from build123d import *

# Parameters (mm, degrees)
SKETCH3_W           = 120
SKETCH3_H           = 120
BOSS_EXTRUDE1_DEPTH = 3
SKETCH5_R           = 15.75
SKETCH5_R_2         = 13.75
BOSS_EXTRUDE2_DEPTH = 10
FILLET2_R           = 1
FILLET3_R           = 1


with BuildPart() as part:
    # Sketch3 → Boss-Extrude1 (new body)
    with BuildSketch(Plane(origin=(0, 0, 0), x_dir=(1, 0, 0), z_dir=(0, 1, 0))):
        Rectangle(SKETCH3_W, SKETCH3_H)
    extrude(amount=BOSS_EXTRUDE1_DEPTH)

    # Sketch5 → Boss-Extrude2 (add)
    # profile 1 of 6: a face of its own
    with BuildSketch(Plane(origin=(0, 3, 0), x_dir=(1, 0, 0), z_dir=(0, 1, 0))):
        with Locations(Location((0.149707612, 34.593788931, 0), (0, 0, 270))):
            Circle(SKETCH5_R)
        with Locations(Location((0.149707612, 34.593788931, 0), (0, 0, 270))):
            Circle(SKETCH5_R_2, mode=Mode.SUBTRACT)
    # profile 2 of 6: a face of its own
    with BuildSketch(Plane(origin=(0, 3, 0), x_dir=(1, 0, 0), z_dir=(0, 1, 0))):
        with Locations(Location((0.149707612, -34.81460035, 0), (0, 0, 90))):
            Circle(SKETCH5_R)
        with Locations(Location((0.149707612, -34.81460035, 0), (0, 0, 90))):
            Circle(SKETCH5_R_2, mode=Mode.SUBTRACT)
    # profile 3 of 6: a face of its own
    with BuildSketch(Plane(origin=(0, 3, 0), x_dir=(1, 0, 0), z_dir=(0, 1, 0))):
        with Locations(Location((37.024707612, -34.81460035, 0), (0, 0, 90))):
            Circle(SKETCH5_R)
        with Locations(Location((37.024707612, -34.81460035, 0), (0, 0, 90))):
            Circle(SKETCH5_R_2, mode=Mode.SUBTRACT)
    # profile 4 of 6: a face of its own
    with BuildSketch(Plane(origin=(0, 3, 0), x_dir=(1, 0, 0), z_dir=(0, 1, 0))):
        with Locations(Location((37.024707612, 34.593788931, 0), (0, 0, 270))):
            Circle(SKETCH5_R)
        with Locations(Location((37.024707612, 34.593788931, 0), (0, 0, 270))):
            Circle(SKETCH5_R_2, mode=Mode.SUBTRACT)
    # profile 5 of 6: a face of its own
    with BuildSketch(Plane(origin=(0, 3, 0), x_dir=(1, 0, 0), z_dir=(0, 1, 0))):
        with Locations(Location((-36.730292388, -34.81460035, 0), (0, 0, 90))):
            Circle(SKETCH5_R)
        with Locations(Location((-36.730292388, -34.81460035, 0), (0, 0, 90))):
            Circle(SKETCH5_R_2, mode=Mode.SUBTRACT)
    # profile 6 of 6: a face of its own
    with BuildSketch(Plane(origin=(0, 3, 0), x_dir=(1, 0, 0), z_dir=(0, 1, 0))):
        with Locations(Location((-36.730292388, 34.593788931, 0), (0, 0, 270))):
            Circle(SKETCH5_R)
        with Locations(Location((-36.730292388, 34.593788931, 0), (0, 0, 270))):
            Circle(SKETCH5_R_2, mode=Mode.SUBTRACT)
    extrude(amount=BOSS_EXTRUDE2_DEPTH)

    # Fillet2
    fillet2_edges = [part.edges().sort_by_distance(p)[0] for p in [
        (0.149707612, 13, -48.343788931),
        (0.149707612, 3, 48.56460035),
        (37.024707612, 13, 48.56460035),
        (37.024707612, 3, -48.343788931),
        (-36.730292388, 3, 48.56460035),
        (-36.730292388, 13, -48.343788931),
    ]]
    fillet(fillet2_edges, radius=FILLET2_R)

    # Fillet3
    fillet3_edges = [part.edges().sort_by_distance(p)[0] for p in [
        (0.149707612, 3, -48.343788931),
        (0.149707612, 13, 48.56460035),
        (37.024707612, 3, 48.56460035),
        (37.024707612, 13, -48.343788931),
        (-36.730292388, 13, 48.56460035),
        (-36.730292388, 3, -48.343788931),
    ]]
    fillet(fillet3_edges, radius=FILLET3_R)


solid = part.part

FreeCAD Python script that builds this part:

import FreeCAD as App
import Part
import Sketcher
from FreeCAD import Vector


def edges_at(feature, points):
    """Names of the edges that pass closest to the given points."""
    edges = feature.Shape.Edges
    near = lambda p: min(range(len(edges)), key=lambda i: edges[i].distToShape(Part.Vertex(*p))[0])
    return sorted({f"Edge{near(p) + 1}" for p in points})

doc = App.newDocument("Part")
body = doc.addObject("PartDesign::Body", "Body")

# Sketch on XZ plane
sketch1 = body.newObject("Sketcher::SketchObject", "Sketch")
sketch1.AttachmentSupport = (doc.getObject("XZ_Plane"), [""])
sketch1.MapMode = "FlatFace"
sketch1.addGeometry(Part.LineSegment(Vector(-60, -60, 0), Vector(-60, 60, 0)), False)
sketch1.addGeometry(Part.LineSegment(Vector(-60, 60, 0), Vector(60, 60, 0)), False)
sketch1.addGeometry(Part.LineSegment(Vector(60, 60, 0), Vector(60, -60, 0)), False)
sketch1.addGeometry(Part.LineSegment(Vector(60, -60, 0), Vector(-60, -60, 0)), False)
sketch1.addConstraint(Sketcher.Constraint("Coincident", 0, 2, 1, 1))
sketch1.addConstraint(Sketcher.Constraint("Coincident", 1, 2, 2, 1))
sketch1.addConstraint(Sketcher.Constraint("Coincident", 2, 2, 3, 1))
sketch1.addConstraint(Sketcher.Constraint("Coincident", 3, 2, 0, 1))
sketch1.addConstraint(Sketcher.Constraint("Vertical", 0))
sketch1.addConstraint(Sketcher.Constraint("Horizontal", 1))
sketch1.addConstraint(Sketcher.Constraint("Vertical", 2))
sketch1.addConstraint(Sketcher.Constraint("Horizontal", 3))
sketch1.addConstraint(Sketcher.Constraint("Symmetric", 0, 2, 2, 2, -1, 1))
sketch1.addConstraint(Sketcher.Constraint("Equal", 3, 0))
sketch1.addConstraint(Sketcher.Constraint("DistanceX", 1, 1, 1, 2, 120.0))
pad1 = body.newObject("PartDesign::Pad", "Pad")
pad1.Profile = sketch1
pad1.Length = 3
pad1.Reversed = True

# Sketch on XZ plane
sketch2 = body.newObject("Sketcher::SketchObject", "Sketch001")
sketch2.AttachmentSupport = (doc.getObject("XZ_Plane"), [""])
sketch2.MapMode = "FlatFace"
sketch2.AttachmentOffset = App.Placement(Vector(0, 0, -3), App.Rotation())
sketch2.addGeometry(Part.Circle(Vector(0, -35, 0), Vector(0, 0, 1), 16), False)
sketch2.addGeometry(Part.Circle(Vector(0, -35, 0), Vector(0, 0, 1), 14), False)
sketch2.addGeometry(Part.Circle(Vector(0, 35, 0), Vector(0, 0, 1), 16), False)
sketch2.addGeometry(Part.Circle(Vector(0, 35, 0), Vector(0, 0, 1), 14), False)
sketch2.addGeometry(Part.Circle(Vector(37, 35, 0), Vector(0, 0, 1), 16), False)
sketch2.addGeometry(Part.Circle(Vector(37, 35, 0), Vector(0, 0, 1), 14), False)
sketch2.addGeometry(Part.Circle(Vector(37, -35, 0), Vector(0, 0, 1), 16), False)
sketch2.addGeometry(Part.Circle(Vector(37, -35, 0), Vector(0, 0, 1), 14), False)
sketch2.addGeometry(Part.Circle(Vector(-37, 35, 0), Vector(0, 0, 1), 16), False)
sketch2.addGeometry(Part.Circle(Vector(-37, 35, 0), Vector(0, 0, 1), 14), False)
sketch2.addGeometry(Part.Circle(Vector(-37, -35, 0), Vector(0, 0, 1), 16), False)
sketch2.addGeometry(Part.Circle(Vector(-37, -35, 0), Vector(0, 0, 1), 14), False)
sketch2.addConstraint(Sketcher.Constraint("Coincident", 1, 3, 0, 3))
sketch2.addConstraint(Sketcher.Constraint("Coincident", 3, 3, 2, 3))
sketch2.addConstraint(Sketcher.Constraint("Coincident", 5, 3, 4, 3))
sketch2.addConstraint(Sketcher.Constraint("Coincident", 7, 3, 6, 3))
sketch2.addConstraint(Sketcher.Constraint("Coincident", 9, 3, 8, 3))
sketch2.addConstraint(Sketcher.Constraint("Coincident", 11, 3, 10, 3))
sketch2.addConstraint(Sketcher.Constraint("Equal", 0, 2))
sketch2.addConstraint(Sketcher.Constraint("Equal", 1, 3))
sketch2.addConstraint(Sketcher.Constraint("Equal", 2, 4))
sketch2.addConstraint(Sketcher.Constraint("Equal", 3, 5))
sketch2.addConstraint(Sketcher.Constraint("Equal", 4, 6))
sketch2.addConstraint(Sketcher.Constraint("Equal", 5, 7))
sketch2.addConstraint(Sketcher.Constraint("Equal", 6, 8))
sketch2.addConstraint(Sketcher.Constraint("Equal", 7, 9))
sketch2.addConstraint(Sketcher.Constraint("Equal", 8, 10))
sketch2.addConstraint(Sketcher.Constraint("Equal", 9, 11))
sketch2.addConstraint(Sketcher.Constraint("Horizontal", 3, 3, 4, 3))
sketch2.addConstraint(Sketcher.Constraint("Horizontal", 1, 3, 6, 3))
sketch2.addConstraint(Sketcher.Constraint("Horizontal", 5, 3, 8, 3))
sketch2.addConstraint(Sketcher.Constraint("Horizontal", 7, 3, 10, 3))
sketch2.addConstraint(Sketcher.Constraint("Vertical", 1, 3, 2, 3))
sketch2.addConstraint(Sketcher.Constraint("Vertical", 5, 3, 6, 3))
sketch2.addConstraint(Sketcher.Constraint("Vertical", 9, 3, 10, 3))
sketch2.addConstraint(Sketcher.Constraint("Diameter", 0, 31.5))
sketch2.addConstraint(Sketcher.Constraint("Diameter", 1, 27.5))
sketch2.addConstraint(Sketcher.Constraint("DistanceX", 8, 3, 2, 3, 36.88))
sketch2.addConstraint(Sketcher.Constraint("DistanceX", 2, 3, 4, 3, 36.875))
sketch2.addConstraint(Sketcher.Constraint("DistanceY", -1, 1, 2, 3, 34.8146))
sketch2.addConstraint(Sketcher.Constraint("DistanceY", 0, 3, -1, 1, 34.593789))
sketch2.addConstraint(Sketcher.Constraint("DistanceX", -1, 1, 0, 3, 0.149708))
pad2 = body.newObject("PartDesign::Pad", "Pad001")
pad2.Profile = sketch2
pad2.Length = 10
pad2.Reversed = True
doc.recompute()

fillet = body.newObject("PartDesign::Fillet", "Fillet")
fillet.Base = (pad2, edges_at(pad2, [
    (0.15, 13, -48.344),
    (0.15, 3, 48.565),
    (37.025, 13, 48.565),
    (37.025, 3, -48.344),
    (-36.73, 3, 48.565),
    (-36.73, 13, -48.344),
]))
fillet.Radius = 1
doc.recompute()

fillet2 = body.newObject("PartDesign::Fillet", "Fillet001")
fillet2.Base = (fillet, edges_at(fillet, [
    (0.15, 3, -48.344),
    (0.15, 13, 48.565),
    (37.025, 3, 48.565),
    (37.025, 13, -48.344),
    (-36.73, 13, 48.565),
    (-36.73, 3, -48.344),
]))
fillet2.Radius = 1

doc.recompute()
